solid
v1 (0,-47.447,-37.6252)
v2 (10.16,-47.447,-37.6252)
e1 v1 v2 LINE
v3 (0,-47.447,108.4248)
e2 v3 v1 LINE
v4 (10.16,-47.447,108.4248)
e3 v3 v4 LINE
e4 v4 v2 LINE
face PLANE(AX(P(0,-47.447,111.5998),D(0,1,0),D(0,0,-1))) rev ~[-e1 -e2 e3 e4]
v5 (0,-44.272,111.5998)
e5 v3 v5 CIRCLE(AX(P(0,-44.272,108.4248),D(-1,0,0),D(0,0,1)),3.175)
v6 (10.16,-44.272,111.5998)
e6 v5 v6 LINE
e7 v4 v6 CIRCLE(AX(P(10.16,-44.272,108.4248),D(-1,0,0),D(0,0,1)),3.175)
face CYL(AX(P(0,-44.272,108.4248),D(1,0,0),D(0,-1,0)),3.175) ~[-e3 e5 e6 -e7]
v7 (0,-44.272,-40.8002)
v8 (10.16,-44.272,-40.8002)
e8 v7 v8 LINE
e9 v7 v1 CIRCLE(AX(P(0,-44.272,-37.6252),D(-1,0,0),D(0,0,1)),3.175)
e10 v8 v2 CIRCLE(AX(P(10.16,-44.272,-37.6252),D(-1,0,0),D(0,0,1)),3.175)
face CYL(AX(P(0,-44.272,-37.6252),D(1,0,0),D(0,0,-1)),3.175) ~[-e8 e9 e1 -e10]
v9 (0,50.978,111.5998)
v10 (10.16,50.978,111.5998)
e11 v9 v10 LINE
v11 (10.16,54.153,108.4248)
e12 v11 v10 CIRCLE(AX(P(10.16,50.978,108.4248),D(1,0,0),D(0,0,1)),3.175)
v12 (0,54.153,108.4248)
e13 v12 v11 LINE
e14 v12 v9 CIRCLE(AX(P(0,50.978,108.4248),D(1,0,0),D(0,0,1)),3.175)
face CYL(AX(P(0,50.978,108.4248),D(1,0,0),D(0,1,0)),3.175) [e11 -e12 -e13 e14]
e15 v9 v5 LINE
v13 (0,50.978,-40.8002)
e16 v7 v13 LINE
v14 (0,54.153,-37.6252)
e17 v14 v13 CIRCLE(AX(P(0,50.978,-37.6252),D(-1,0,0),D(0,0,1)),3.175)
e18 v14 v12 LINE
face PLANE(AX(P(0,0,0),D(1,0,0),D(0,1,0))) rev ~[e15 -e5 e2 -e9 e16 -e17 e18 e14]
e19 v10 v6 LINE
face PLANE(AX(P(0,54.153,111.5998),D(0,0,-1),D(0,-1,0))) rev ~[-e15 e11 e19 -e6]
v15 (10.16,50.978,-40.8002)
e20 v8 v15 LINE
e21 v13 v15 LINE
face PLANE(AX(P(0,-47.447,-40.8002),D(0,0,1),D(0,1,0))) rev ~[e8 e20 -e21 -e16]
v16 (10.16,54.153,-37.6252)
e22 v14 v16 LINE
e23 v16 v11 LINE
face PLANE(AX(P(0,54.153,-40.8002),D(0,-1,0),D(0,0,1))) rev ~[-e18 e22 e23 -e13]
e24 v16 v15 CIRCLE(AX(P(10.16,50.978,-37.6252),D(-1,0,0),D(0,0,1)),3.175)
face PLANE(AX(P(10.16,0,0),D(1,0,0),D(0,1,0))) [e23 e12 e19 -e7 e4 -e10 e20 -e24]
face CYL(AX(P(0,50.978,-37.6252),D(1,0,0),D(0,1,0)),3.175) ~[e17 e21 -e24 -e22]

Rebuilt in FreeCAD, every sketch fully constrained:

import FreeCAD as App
import Part
import Sketcher
Q = App.Units.Quantity


def edges_at(feature, points):
    """Names of the edges that pass closest to the given points."""
    edges = feature.Shape.Edges
    near = lambda p: min(range(len(edges)), key=lambda i: edges[i].distToShape(Part.Vertex(*p))[0])
    return sorted({f"Edge{near(p) + 1}" for p in points})


def add_polygon(sketch, points):
    """Adds a closed chain of lines whose ends are joined by coincident constraints."""
    first, n = sketch.GeometryCount, len(points)
    for a, b in zip(points, points[1:] + points[:1]):
        sketch.addGeometry(Part.LineSegment(App.Vector(*a, 0), App.Vector(*b, 0)), False)
    for i in range(n):
        sketch.addConstraint(Sketcher.Constraint("Coincident", first + i, 2, first + (i + 1) % n, 1))

doc = App.newDocument("Part")
body = doc.addObject("PartDesign::Body", "Body")

# Sketch on YZ plane
sketch1 = body.newObject("Sketcher::SketchObject", "Sketch")
sketch1.AttachmentSupport = (doc.getObject("YZ_Plane"), [""])
sketch1.MapMode = "FlatFace"
add_polygon(sketch1, [(54, -41), (54, 112), (-47, 112), (-47, -41)])  # lines 0-3
sketch1.addConstraint(Sketcher.Constraint("Vertical", 0))
sketch1.addConstraint(Sketcher.Constraint("Horizontal", 1))
sketch1.addConstraint(Sketcher.Constraint("Vertical", 2))
sketch1.addConstraint(Sketcher.Constraint("Horizontal", 3))
sketch1.addConstraint(Sketcher.Constraint("DistanceX", 1, 2, 1, 1, Q("4 in")))
sketch1.addConstraint(Sketcher.Constraint("DistanceY", 0, 1, 0, 2, Q("6 in")))
sketch1.addConstraint(Sketcher.Constraint("DistanceX", -1, 1, 0, 2, Q("2.132 in")))
sketch1.addConstraint(Sketcher.Constraint("DistanceY", -1, 1, 0, 2, Q("4.3937 in")))
pad1 = body.newObject("PartDesign::Pad", "Pad")
pad1.Profile = sketch1
pad1.Length = Q("0.4 in")
doc.recompute()

fillet = body.newObject("PartDesign::Fillet", "Fillet")
fillet.Base = (pad1, edges_at(pad1, [
    (5.08, 54.153, 111.6),
    (5.08, 54.153, -40.8),
    (5.08, -47.447, -40.8),
    (5.08, -47.447, 111.6),
]))
fillet.Radius = Q("0.125 in")

doc.recompute()
